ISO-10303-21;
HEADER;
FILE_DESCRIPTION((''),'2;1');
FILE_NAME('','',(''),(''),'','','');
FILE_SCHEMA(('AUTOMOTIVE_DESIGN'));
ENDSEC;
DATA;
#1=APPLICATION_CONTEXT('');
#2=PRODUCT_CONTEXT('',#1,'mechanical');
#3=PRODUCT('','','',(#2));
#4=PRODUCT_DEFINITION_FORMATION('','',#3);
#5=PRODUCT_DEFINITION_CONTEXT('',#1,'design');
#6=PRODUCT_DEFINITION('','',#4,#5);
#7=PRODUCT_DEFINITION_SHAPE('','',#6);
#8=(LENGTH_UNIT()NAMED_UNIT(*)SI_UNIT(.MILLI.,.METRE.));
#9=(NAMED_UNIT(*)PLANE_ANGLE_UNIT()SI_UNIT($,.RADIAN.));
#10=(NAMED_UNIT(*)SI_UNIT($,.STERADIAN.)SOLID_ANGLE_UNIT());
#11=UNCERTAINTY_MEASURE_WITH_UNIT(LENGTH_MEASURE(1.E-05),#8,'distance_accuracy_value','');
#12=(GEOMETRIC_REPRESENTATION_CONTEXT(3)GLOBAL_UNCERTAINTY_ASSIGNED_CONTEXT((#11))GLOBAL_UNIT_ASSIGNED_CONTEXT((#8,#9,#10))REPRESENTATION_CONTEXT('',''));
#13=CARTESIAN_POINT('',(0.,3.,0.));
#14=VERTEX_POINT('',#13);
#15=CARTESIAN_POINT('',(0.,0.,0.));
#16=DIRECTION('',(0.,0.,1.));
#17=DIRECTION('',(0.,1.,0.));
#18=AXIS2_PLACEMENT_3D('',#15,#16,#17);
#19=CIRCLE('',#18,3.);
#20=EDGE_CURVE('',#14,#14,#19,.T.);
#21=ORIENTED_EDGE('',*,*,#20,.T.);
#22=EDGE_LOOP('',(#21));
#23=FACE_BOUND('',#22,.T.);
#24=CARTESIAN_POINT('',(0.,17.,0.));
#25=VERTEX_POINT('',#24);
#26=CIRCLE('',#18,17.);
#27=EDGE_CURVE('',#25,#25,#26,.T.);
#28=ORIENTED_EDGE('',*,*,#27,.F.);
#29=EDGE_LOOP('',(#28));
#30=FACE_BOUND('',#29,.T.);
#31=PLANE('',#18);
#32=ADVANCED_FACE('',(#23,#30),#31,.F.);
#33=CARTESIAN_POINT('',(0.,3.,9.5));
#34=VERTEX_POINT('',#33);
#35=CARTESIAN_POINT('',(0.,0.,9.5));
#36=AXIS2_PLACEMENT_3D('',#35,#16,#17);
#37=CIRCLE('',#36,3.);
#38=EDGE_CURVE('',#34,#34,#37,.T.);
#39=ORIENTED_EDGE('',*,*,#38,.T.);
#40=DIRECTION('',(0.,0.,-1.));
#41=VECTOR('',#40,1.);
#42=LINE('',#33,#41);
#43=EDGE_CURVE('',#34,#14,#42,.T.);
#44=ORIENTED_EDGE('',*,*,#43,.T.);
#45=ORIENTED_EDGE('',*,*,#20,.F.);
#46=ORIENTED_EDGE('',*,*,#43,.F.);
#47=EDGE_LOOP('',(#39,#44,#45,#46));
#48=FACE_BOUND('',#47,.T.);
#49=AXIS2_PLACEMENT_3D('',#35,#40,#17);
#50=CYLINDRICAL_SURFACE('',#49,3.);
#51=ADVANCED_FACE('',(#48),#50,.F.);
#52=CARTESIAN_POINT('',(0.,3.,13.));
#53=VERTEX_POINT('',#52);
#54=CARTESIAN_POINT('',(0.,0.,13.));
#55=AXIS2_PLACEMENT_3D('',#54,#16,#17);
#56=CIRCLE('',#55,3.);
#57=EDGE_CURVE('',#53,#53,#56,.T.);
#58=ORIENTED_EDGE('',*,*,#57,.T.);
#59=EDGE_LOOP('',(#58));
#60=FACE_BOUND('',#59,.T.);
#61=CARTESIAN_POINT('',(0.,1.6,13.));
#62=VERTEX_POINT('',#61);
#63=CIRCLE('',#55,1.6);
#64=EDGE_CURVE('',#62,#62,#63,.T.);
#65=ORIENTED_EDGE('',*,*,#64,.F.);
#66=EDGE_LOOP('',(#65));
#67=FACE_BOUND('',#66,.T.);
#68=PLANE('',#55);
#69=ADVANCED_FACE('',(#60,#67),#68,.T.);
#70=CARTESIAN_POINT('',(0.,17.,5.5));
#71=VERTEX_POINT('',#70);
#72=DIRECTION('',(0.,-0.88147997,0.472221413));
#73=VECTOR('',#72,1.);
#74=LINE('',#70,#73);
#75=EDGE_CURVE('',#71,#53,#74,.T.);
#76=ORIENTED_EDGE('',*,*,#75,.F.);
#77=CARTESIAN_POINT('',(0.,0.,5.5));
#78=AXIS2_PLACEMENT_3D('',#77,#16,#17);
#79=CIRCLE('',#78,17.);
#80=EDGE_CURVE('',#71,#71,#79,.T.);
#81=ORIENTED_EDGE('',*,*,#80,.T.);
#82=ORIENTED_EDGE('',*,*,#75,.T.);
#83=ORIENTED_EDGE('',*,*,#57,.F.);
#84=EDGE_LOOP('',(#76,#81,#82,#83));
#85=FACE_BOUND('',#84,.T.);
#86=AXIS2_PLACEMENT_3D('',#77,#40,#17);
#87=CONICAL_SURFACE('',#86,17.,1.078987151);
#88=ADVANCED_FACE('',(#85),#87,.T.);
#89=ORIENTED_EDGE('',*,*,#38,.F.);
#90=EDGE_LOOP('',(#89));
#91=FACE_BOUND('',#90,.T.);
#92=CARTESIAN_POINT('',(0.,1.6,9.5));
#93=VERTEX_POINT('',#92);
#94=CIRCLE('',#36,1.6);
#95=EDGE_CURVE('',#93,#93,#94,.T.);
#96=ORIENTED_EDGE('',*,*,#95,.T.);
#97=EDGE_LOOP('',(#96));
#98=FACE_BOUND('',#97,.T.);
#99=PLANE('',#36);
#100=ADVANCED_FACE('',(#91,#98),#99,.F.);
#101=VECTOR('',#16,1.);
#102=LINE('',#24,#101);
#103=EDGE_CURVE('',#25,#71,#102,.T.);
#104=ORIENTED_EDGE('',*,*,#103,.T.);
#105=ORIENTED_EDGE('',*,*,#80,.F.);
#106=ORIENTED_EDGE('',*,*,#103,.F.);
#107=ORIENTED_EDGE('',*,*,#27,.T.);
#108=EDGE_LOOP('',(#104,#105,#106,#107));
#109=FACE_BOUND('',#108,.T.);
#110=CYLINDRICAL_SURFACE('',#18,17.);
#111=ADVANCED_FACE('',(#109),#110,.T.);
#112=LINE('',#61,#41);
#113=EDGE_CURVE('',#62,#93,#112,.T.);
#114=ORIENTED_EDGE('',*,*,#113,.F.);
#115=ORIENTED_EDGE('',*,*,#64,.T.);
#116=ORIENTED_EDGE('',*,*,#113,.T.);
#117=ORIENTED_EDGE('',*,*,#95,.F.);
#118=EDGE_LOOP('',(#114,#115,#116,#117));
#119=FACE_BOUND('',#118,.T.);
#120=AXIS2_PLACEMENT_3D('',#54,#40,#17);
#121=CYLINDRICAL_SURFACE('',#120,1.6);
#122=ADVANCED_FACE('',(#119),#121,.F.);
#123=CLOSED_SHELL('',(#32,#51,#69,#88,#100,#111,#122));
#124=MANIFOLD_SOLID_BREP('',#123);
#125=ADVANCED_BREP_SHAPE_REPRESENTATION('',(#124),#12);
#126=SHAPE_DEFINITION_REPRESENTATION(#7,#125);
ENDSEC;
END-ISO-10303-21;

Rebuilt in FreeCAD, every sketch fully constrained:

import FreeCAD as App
import Part
import Sketcher

doc = App.newDocument("Part")
body = doc.addObject("PartDesign::Body", "Body")

sketch1 = body.newObject("Sketcher::SketchObject", "Sketch")
sketch1.AttachmentSupport = (doc.getObject("YZ_Plane"), [""])
sketch1.MapMode = "FlatFace"
sketch1.addGeometry([
    Part.LineSegment(App.Vector(1.6, 13, 0), App.Vector(1.6, 9.5, 0)),
    Part.LineSegment(App.Vector(1.6, 9.5, 0), App.Vector(3, 9.5, 0)),
    Part.LineSegment(App.Vector(3, 9.5, 0), App.Vector(3, 0, 0)),
    Part.LineSegment(App.Vector(3, 0, 0), App.Vector(17, 0, 0)),
    Part.LineSegment(App.Vector(17, 0, 0), App.Vector(17, 5.5, 0)),
    Part.LineSegment(App.Vector(17, 5.5, 0), App.Vector(3, 13, 0)),
    Part.LineSegment(App.Vector(3, 13, 0), App.Vector(1.6, 13, 0)),
], False)
sketch1.addConstraint([
    Sketcher.Constraint("Coincident", 0, 2, 1, 1),
    Sketcher.Constraint("Coincident", 1, 2, 2, 1),
    Sketcher.Constraint("Coincident", 2, 2, 3, 1),
    Sketcher.Constraint("Coincident", 3, 2, 4, 1),
    Sketcher.Constraint("Coincident", 4, 2, 5, 1),
    Sketcher.Constraint("Coincident", 5, 2, 6, 1),
    Sketcher.Constraint("Coincident", 6, 2, 0, 1),
    Sketcher.Constraint("Vertical", 0),
    Sketcher.Constraint("Horizontal", 1),
    Sketcher.Constraint("Vertical", 2),
    Sketcher.Constraint("Horizontal", 3),
    Sketcher.Constraint("Vertical", 4),
    Sketcher.Constraint("Horizontal", 6),
    Sketcher.Constraint("PointOnObject", 2, 2, -1),
    Sketcher.Constraint("Vertical", 2, 2, 5, 2),
    Sketcher.Constraint("DistanceX", 3, 1, 3, 2, 14.0),
    Sketcher.Constraint("DistanceX", 1, 1, 1, 2, 1.4),
    Sketcher.Constraint("DistanceY", 0, 2, 0, 1, 3.5),
    Sketcher.Constraint("DistanceY", 2, 2, 2, 1, 9.5),
    Sketcher.Constraint("DistanceY", 4, 1, 4, 2, 5.5),
    Sketcher.Constraint("DistanceX", -1, 1, 1, 2, 3.0),
])
revolution = body.newObject("PartDesign::Revolution", "Revolution")
revolution.Profile = sketch1
revolution.ReferenceAxis = (sketch1, ["V_Axis"])
revolution.Angle = 360

doc.recompute()
